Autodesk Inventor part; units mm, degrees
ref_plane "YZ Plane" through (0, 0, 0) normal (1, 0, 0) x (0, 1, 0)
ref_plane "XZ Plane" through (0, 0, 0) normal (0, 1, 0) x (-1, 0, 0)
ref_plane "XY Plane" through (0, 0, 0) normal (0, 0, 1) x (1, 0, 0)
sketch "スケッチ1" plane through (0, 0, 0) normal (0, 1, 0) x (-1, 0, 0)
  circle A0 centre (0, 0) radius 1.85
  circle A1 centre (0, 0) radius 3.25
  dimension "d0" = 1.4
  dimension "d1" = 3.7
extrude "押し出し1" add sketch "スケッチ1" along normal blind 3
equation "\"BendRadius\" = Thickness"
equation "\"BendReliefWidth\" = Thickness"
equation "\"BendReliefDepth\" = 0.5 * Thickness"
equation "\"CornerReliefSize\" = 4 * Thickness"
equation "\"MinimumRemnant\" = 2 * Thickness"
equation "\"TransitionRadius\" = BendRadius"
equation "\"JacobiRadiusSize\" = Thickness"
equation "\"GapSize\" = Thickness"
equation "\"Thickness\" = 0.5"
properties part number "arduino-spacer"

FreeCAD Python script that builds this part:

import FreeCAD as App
import Part
import Sketcher
from FreeCAD import Vector
Q = App.Units.Quantity

doc = App.newDocument("Part")
body = doc.addObject("PartDesign::Body", "Body")

sketch1 = body.newObject("Sketcher::SketchObject", "Sketch")
sketch1.AttachmentSupport = (doc.getObject("XZ_Plane"), [""])
sketch1.MapMode = "FlatFace"
sketch1.addGeometry([
    Part.Circle(Vector(0, 0, 0), Vector(0, 0, 1), 3.25),
    Part.Circle(Vector(0, 0, 0), Vector(0, 0, 1), 1.85),
], False)
sketch1.addConstraint([
    Sketcher.Constraint("Coincident", 0, 3, -1, 1),
    Sketcher.Constraint("Coincident", 1, 3, -1, 1),
    Sketcher.Constraint("Diameter", 1, Q("3.7 mm")),
    Sketcher.Constraint("Diameter", 0, Q("6.5 mm")),
])
pad1 = body.newObject("PartDesign::Pad", "Pad")
pad1.Profile = sketch1
pad1.Length = 3
pad1.Reversed = True

doc.recompute()
